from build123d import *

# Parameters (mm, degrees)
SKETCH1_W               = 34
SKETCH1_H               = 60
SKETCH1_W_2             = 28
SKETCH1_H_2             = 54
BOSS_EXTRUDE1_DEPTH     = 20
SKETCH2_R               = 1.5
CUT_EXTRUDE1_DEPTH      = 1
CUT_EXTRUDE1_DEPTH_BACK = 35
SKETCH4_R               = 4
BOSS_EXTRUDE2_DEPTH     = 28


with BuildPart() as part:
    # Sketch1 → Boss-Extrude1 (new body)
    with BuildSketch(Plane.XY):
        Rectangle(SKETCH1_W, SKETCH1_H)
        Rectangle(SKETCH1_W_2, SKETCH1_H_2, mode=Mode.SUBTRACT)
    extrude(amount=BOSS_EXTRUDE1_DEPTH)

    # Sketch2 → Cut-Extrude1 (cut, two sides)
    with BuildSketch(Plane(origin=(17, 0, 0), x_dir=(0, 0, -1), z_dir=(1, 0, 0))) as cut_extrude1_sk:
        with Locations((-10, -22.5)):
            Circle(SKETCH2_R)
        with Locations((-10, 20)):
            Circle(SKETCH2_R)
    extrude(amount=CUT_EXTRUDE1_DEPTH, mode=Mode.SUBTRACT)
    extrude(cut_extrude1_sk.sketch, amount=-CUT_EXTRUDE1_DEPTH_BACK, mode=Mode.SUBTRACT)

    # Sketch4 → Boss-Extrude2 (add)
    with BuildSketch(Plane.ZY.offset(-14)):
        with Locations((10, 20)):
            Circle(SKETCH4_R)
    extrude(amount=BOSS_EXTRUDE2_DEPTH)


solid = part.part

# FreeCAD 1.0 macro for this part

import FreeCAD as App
import Part
import Sketcher
from FreeCAD import Vector
Q = App.Units.Quantity


def add_polygon(sketch, points):
    """Adds a closed chain of lines whose ends are joined by coincident constraints."""
    first, n = sketch.GeometryCount, len(points)
    for a, b in zip(points, points[1:] + points[:1]):
        sketch.addGeometry(Part.LineSegment(App.Vector(*a, 0), App.Vector(*b, 0)), False)
    for i in range(n):
        sketch.addConstraint(Sketcher.Constraint("Coincident", first + i, 2, first + (i + 1) % n, 1))

doc = App.newDocument("Part")
body = doc.addObject("PartDesign::Body", "Body")

sketch1 = doc.addObject("Sketcher::SketchObject", "Sketch")
body.addObject(sketch1)
sketch1.AttachmentSupport = (doc.XY_Plane, [""])
sketch1.MapMode = "FlatFace"
add_polygon(sketch1, [(-17, 30), (-17, -30), (17, -30), (17, 30)])
add_polygon(sketch1, [(14, -27), (-14, -27), (-14, 27), (14, 27)])
sketch1.addConstraint([
    Sketcher.Constraint("Vertical", 0),
    Sketcher.Constraint("Horizontal", 1),
    Sketcher.Constraint("Vertical", 2),
    Sketcher.Constraint("Horizontal", 3),
    Sketcher.Constraint("Horizontal", 4),
    Sketcher.Constraint("Vertical", 5),
    Sketcher.Constraint("Horizontal", 6),
    Sketcher.Constraint("Vertical", 7),
    Sketcher.Constraint("Symmetric", 0, 2, 2, 2, -1, 1),
    Sketcher.Constraint("Symmetric", 4, 2, 6, 2, -1, 1),
    Sketcher.Constraint("DistanceX", 1, 1, 1, 2, Q("34 mm")),
    Sketcher.Constraint("DistanceX", 4, 2, 4, 1, Q("28 mm")),
    Sketcher.Constraint("DistanceY", 0, 2, 0, 1, Q("60 mm")),
    Sketcher.Constraint("DistanceY", 5, 1, 5, 2, Q("54 mm")),
])
pad1 = doc.addObject("PartDesign::Pad", "Pad")
body.addObject(pad1)
pad1.Profile = sketch1
pad1.Length = 20

sketch2 = doc.addObject("Sketcher::SketchObject", "Sketch001")
body.addObject(sketch2)
sketch2.AttachmentSupport = (doc.YZ_Plane, [""])
sketch2.MapMode = "FlatFace"
sketch2.AttachmentOffset = App.Placement(Vector(0, 0, 17), App.Rotation())
sketch2.addGeometry([
    Part.Circle(Vector(-22.5, 10, 0), Vector(0, 0, 1), 1.5),
    Part.Circle(Vector(20, 10, 0), Vector(0, 0, 1), 1.5),
], False)
sketch2.addConstraint([
    Sketcher.Constraint("Equal", 0, 1),
    Sketcher.Constraint("Horizontal", 0, 3, 1, 3),
    Sketcher.Constraint("Diameter", 0, Q("3 mm")),
    Sketcher.Constraint("DistanceY", -1, 1, 0, 3, Q("10 mm")),
    Sketcher.Constraint("DistanceX", -1, 1, 1, 3, Q("20 mm")),
    Sketcher.Constraint("DistanceX", 0, 3, -1, 1, Q("22.5 mm")),
])
pocket1 = doc.addObject("PartDesign::Pocket", "Pocket")
body.addObject(pocket1)
pocket1.Profile = sketch2
pocket1.Type = "ThroughAll"
pocket1.Midplane = True

sketch3 = doc.addObject("Sketcher::SketchObject", "Sketch002")
body.addObject(sketch3)
sketch3.AttachmentSupport = (doc.YZ_Plane, [""])
sketch3.MapMode = "FlatFace"
sketch3.AttachmentOffset = App.Placement(Vector(0, 0, 14), App.Rotation())
sketch3.addGeometry(Part.Circle(Vector(20, 10, 0), Vector(0, 0, 1), 4), False)
sketch3.addConstraint([
    Sketcher.Constraint("Diameter", 0, Q("8 mm")),
    Sketcher.Constraint("DistanceX", -1, 1, 0, 3, Q("20 mm")),
    Sketcher.Constraint("DistanceY", -1, 1, 0, 3, Q("10 mm")),
])
pad2 = doc.addObject("PartDesign::Pad", "Pad001")
body.addObject(pad2)
pad2.Profile = sketch3
pad2.Length = 28
pad2.Reversed = True

doc.recompute()
